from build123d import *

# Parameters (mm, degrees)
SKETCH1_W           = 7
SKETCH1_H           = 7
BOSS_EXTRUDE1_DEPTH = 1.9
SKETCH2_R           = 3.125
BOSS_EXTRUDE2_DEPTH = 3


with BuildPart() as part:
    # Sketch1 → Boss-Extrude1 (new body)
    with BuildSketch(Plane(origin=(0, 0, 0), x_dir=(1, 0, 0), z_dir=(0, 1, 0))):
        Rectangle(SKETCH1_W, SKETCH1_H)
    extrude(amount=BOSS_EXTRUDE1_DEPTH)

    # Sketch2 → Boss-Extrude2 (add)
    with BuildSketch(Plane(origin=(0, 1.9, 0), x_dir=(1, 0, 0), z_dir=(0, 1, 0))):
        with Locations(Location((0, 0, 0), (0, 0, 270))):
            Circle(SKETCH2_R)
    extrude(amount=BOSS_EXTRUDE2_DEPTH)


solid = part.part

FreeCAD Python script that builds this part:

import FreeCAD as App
import Part
import Sketcher
from FreeCAD import Vector
Q = App.Units.Quantity

doc = App.newDocument("Part")
params = doc.addObject("Spreadsheet::Sheet", "Params")
for row, (alias, value) in enumerate([
    ("sketch1_width", "7 mm"),
    ("pad1_length", "1.9 mm"),
    ("sketch2_diameter", "6.25 mm"),
    ("pad2_length", "3 mm"),
], start=1):
    params.set(f"A{row}", alias)
    params.set(f"B{row}", "=" + value)
    params.setAlias(f"B{row}", alias)

body = doc.addObject("PartDesign::Body", "Body")

sketch1 = body.newObject("Sketcher::SketchObject", "Sketch")
sketch1.AttachmentSupport = (doc.getObject("XZ_Plane"), [""])
sketch1.MapMode = "FlatFace"
sketch1.addGeometry([
    Part.LineSegment(Vector(-4, -4, 0), Vector(-4, 4, 0)),
    Part.LineSegment(Vector(-4, 4, 0), Vector(4, 4, 0)),
    Part.LineSegment(Vector(4, 4, 0), Vector(4, -4, 0)),
    Part.LineSegment(Vector(4, -4, 0), Vector(-4, -4, 0)),
], False)
sketch1.addConstraint([
    Sketcher.Constraint("Coincident", 0, 2, 1, 1),
    Sketcher.Constraint("Coincident", 1, 2, 2, 1),
    Sketcher.Constraint("Coincident", 2, 2, 3, 1),
    Sketcher.Constraint("Coincident", 3, 2, 0, 1),
    Sketcher.Constraint("Vertical", 0),
    Sketcher.Constraint("Horizontal", 1),
    Sketcher.Constraint("Vertical", 2),
    Sketcher.Constraint("Horizontal", 3),
    Sketcher.Constraint("Symmetric", 0, 2, 2, 2, -1, 1),
    Sketcher.Constraint("Equal", 3, 0),
    Sketcher.Constraint("DistanceX", 1, 1, 1, 2, Q("7 mm")),
])
sketch1.setExpression("Constraints[10]", "Params.sketch1_width")
pad1 = body.newObject("PartDesign::Pad", "Pad")
pad1.Profile = sketch1
pad1.setExpression("Length", "Params.pad1_length")
pad1.Reversed = True

sketch2 = body.newObject("Sketcher::SketchObject", "Sketch001")
sketch2.AttachmentSupport = (doc.getObject("XZ_Plane"), [""])
sketch2.MapMode = "FlatFace"
sketch2.AttachmentOffset = App.Placement(Vector(0, 0, -1.9), App.Rotation())
sketch2.addGeometry(Part.Circle(Vector(0, 0, 0), Vector(0, 0, 1), 3.1), False)
sketch2.addConstraint([
    Sketcher.Constraint("Coincident", 0, 3, -1, 1),
    Sketcher.Constraint("Diameter", 0, Q("6.25 mm")),
])
sketch2.setExpression("Constraints[1]", "Params.sketch2_diameter")
pad2 = body.newObject("PartDesign::Pad", "Pad001")
pad2.Profile = sketch2
pad2.setExpression("Length", "Params.pad2_length")
pad2.Reversed = True

doc.recompute()
